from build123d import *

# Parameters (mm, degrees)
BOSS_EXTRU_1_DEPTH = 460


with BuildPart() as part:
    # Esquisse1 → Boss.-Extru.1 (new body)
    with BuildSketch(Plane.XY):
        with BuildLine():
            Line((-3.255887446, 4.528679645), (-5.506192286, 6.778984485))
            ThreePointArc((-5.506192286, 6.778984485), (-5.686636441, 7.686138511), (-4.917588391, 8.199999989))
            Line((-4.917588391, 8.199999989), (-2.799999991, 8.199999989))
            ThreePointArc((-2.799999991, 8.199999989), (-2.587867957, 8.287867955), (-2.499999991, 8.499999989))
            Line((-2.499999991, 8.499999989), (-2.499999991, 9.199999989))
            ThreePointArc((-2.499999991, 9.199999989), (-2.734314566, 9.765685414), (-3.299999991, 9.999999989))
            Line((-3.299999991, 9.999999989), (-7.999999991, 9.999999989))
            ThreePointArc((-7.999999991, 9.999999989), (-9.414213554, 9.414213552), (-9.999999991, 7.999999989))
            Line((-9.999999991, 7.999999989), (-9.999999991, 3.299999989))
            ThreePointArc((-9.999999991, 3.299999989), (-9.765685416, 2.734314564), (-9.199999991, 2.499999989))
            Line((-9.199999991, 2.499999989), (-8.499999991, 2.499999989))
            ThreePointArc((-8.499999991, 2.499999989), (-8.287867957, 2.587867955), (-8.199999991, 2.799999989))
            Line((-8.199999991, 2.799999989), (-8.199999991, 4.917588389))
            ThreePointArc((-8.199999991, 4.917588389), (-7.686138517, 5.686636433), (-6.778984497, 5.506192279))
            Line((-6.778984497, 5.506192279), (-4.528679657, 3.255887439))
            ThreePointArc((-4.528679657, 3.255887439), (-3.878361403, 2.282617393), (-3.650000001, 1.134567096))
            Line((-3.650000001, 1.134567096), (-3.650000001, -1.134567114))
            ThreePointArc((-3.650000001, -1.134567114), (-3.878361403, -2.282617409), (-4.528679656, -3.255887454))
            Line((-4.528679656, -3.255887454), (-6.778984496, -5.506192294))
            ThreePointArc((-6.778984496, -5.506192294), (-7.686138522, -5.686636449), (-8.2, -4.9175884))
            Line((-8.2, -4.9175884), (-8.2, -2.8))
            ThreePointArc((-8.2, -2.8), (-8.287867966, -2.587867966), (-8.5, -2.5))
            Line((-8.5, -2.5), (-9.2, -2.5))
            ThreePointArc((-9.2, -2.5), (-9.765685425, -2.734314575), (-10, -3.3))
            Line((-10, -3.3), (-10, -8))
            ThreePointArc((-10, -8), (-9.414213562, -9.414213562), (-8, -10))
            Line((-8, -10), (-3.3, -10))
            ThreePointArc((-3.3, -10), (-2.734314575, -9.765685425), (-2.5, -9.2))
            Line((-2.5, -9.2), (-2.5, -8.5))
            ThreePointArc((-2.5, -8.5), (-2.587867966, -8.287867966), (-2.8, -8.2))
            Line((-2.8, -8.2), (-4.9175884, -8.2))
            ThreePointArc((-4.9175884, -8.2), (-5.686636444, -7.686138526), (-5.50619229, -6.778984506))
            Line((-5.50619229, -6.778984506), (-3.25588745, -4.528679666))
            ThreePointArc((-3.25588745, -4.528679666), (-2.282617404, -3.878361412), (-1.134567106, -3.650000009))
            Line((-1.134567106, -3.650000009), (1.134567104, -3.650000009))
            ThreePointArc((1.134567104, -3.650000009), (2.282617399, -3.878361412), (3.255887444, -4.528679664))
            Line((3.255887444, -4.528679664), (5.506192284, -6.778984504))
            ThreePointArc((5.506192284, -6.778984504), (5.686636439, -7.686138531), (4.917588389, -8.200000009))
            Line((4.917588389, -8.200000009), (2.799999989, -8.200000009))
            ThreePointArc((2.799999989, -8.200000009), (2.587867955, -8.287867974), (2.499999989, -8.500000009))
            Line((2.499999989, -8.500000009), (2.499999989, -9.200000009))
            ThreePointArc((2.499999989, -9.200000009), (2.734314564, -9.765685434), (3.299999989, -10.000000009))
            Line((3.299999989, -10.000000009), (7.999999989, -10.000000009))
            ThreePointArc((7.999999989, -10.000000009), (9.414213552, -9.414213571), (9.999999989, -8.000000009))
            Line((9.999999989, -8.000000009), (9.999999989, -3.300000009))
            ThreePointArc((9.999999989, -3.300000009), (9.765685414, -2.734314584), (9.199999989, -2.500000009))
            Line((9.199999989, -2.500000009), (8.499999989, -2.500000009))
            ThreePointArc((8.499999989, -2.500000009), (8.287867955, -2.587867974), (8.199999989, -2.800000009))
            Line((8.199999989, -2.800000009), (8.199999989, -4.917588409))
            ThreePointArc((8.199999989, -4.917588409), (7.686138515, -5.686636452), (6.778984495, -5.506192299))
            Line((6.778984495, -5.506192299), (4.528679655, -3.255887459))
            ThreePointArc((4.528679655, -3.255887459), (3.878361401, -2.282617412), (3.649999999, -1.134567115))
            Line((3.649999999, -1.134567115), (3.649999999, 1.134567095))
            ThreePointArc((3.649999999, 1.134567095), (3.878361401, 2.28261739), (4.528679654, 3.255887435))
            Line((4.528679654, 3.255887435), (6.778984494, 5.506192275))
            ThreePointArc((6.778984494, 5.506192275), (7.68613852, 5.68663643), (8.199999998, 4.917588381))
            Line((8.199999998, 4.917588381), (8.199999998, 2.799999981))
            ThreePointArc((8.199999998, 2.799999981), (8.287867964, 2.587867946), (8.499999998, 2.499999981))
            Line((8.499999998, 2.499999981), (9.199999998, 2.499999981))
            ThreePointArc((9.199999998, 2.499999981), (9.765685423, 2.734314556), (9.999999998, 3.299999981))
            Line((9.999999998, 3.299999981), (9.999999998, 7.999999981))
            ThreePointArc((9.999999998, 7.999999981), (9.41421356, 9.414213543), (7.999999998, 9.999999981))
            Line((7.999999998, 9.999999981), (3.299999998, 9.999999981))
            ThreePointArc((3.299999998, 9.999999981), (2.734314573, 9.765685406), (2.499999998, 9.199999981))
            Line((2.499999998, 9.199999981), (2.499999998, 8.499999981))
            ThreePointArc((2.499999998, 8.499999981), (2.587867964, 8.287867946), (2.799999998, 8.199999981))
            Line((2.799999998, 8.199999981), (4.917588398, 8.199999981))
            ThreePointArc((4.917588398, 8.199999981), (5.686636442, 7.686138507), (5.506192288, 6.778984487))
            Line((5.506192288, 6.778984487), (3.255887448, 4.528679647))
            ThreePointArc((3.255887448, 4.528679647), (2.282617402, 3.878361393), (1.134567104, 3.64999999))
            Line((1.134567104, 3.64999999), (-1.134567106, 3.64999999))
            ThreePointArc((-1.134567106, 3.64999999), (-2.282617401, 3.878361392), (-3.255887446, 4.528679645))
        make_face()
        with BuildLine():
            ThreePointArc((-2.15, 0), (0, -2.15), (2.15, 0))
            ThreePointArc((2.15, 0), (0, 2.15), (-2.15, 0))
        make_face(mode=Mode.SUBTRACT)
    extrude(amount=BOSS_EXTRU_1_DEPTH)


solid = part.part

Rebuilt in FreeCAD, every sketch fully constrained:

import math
import FreeCAD as App
import Part
import Sketcher

doc = App.newDocument("Part")
params = doc.addObject("Spreadsheet::Sheet", "Params")
for row, (alias, value) in enumerate([
    ("sketch1_radius", "2 mm"),
    ("sketch1_radius2", "3 mm"),
    ("sketch1_diameter", "4.3 mm"),
    ("sketch1_radius3", "0.3 mm"),
    ("sketch1_radius4", "0.8 mm"),
    ("pad1_length", "460 mm"),
], start=1):
    params.set(f"A{row}", alias)
    params.set(f"B{row}", "=" + value)
    params.setAlias(f"B{row}", alias)

body = doc.addObject("PartDesign::Body", "Body")

sketch1 = doc.addObject("Sketcher::SketchObject", "Sketch")
body.addObject(sketch1)
sketch1.AttachmentSupport = (doc.XY_Plane, [""])
sketch1.MapMode = "FlatFace"
sketch1.addGeometry([
    Part.LineSegment(App.Vector(-3.26, 4.53, 0), App.Vector(-5.51, 6.78, 0)),
    Part.ArcOfCircle(Part.Circle(App.Vector(-4.92, 7.37, 0), App.Vector(0, 0, 1), 0.83), math.radians(90), math.radians(225)),
    Part.LineSegment(App.Vector(-4.92, 8.2, 0), App.Vector(-2.8, 8.2, 0)),
    Part.ArcOfCircle(Part.Circle(App.Vector(-2.8, 8.5, 0), App.Vector(0, 0, 1), 0.3), math.radians(-90), math.radians(0)),
    Part.LineSegment(App.Vector(-2.5, 8.5, 0), App.Vector(-2.5, 9.2, 0)),
    Part.ArcOfCircle(Part.Circle(App.Vector(-3.3, 9.2, 0), App.Vector(0, 0, 1), 0.8), math.radians(0), math.radians(90)),
    Part.LineSegment(App.Vector(-3.3, 10, 0), App.Vector(-8, 10, 0)),
    Part.ArcOfCircle(Part.Circle(App.Vector(-8, 8, 0), App.Vector(0, 0, 1), 2), math.radians(90), math.radians(180)),
    Part.LineSegment(App.Vector(-10, 8, 0), App.Vector(-10, 3.3, 0)),
    Part.ArcOfCircle(Part.Circle(App.Vector(-9.2, 3.3, 0), App.Vector(0, 0, 1), 0.8), math.radians(180), math.radians(270)),
    Part.LineSegment(App.Vector(-9.2, 2.5, 0), App.Vector(-8.5, 2.5, 0)),
    Part.ArcOfCircle(Part.Circle(App.Vector(-8.5, 2.8, 0), App.Vector(0, 0, 1), 0.3), math.radians(-90), math.radians(0)),
    Part.LineSegment(App.Vector(-8.2, 2.8, 0), App.Vector(-8.2, 4.92, 0)),
    Part.ArcOfCircle(Part.Circle(App.Vector(-7.37, 4.92, 0), App.Vector(0, 0, 1), 0.83), math.radians(45), math.radians(180)),
    Part.LineSegment(App.Vector(-6.78, 5.51, 0), App.Vector(-4.53, 3.26, 0)),
    Part.ArcOfCircle(Part.Circle(App.Vector(-6.65, 1.13, 0), App.Vector(0, 0, 1), 3), math.radians(0), math.radians(45)),
    Part.LineSegment(App.Vector(-3.65, 1.13, 0), App.Vector(-3.65, -1.13, 0)),
    Part.ArcOfCircle(Part.Circle(App.Vector(-6.65, -1.13, 0), App.Vector(0, 0, 1), 3), math.radians(-45), math.radians(0)),
    Part.LineSegment(App.Vector(-4.53, -3.26, 0), App.Vector(-6.78, -5.51, 0)),
    Part.ArcOfCircle(Part.Circle(App.Vector(-7.37, -4.92, 0), App.Vector(0, 0, 1), 0.83), math.radians(180), math.radians(315)),
    Part.LineSegment(App.Vector(-8.2, -4.92, 0), App.Vector(-8.2, -2.8, 0)),
    Part.ArcOfCircle(Part.Circle(App.Vector(-8.5, -2.8, 0), App.Vector(0, 0, 1), 0.3), math.radians(0), math.radians(90)),
    Part.LineSegment(App.Vector(-8.5, -2.5, 0), App.Vector(-9.2, -2.5, 0)),
    Part.ArcOfCircle(Part.Circle(App.Vector(-9.2, -3.3, 0), App.Vector(0, 0, 1), 0.8), math.radians(90), math.radians(180)),
    Part.LineSegment(App.Vector(-10, -3.3, 0), App.Vector(-10, -8, 0)),
    Part.ArcOfCircle(Part.Circle(App.Vector(-8, -8, 0), App.Vector(0, 0, 1), 2), math.radians(-180), math.radians(-90)),
    Part.LineSegment(App.Vector(-8, -10, 0), App.Vector(-3.3, -10, 0)),
    Part.ArcOfCircle(Part.Circle(App.Vector(-3.3, -9.2, 0), App.Vector(0, 0, 1), 0.8), math.radians(-90), math.radians(0)),
    Part.LineSegment(App.Vector(-2.5, -9.2, 0), App.Vector(-2.5, -8.5, 0)),
    Part.ArcOfCircle(Part.Circle(App.Vector(-2.8, -8.5, 0), App.Vector(0, 0, 1), 0.3), math.radians(0), math.radians(90)),
    Part.LineSegment(App.Vector(-2.8, -8.2, 0), App.Vector(-4.92, -8.2, 0)),
    Part.ArcOfCircle(Part.Circle(App.Vector(-4.92, -7.37, 0), App.Vector(0, 0, 1), 0.83), math.radians(135), math.radians(270)),
    Part.LineSegment(App.Vector(-5.51, -6.78, 0), App.Vector(-3.26, -4.53, 0)),
    Part.ArcOfCircle(Part.Circle(App.Vector(-1.13, -6.65, 0), App.Vector(0, 0, 1), 3), math.radians(90), math.radians(135)),
    Part.LineSegment(App.Vector(-1.13, -3.65, 0), App.Vector(1.13, -3.65, 0)),
    Part.ArcOfCircle(Part.Circle(App.Vector(1.13, -6.65, 0), App.Vector(0, 0, 1), 3), math.radians(45), math.radians(90)),
    Part.LineSegment(App.Vector(3.26, -4.53, 0), App.Vector(5.51, -6.78, 0)),
    Part.ArcOfCircle(Part.Circle(App.Vector(4.92, -7.37, 0), App.Vector(0, 0, 1), 0.83), math.radians(-90), math.radians(45)),
    Part.LineSegment(App.Vector(4.92, -8.2, 0), App.Vector(2.8, -8.2, 0)),
    Part.ArcOfCircle(Part.Circle(App.Vector(2.8, -8.5, 0), App.Vector(0, 0, 1), 0.3), math.radians(90), math.radians(180)),
    Part.LineSegment(App.Vector(2.5, -8.5, 0), App.Vector(2.5, -9.2, 0)),
    Part.ArcOfCircle(Part.Circle(App.Vector(3.3, -9.2, 0), App.Vector(0, 0, 1), 0.8), math.radians(180), math.radians(270)),
    Part.LineSegment(App.Vector(3.3, -10, 0), App.Vector(8, -10, 0)),
    Part.ArcOfCircle(Part.Circle(App.Vector(8, -8, 0), App.Vector(0, 0, 1), 2), math.radians(-90), math.radians(0)),
    Part.LineSegment(App.Vector(10, -8, 0), App.Vector(10, -3.3, 0)),
    Part.ArcOfCircle(Part.Circle(App.Vector(9.2, -3.3, 0), App.Vector(0, 0, 1), 0.8), math.radians(0), math.radians(90)),
    Part.LineSegment(App.Vector(9.2, -2.5, 0), App.Vector(8.5, -2.5, 0)),
    Part.ArcOfCircle(Part.Circle(App.Vector(8.5, -2.8, 0), App.Vector(0, 0, 1), 0.3), math.radians(90), math.radians(180)),
    Part.LineSegment(App.Vector(8.2, -2.8, 0), App.Vector(8.2, -4.92, 0)),
    Part.ArcOfCircle(Part.Circle(App.Vector(7.37, -4.92, 0), App.Vector(0, 0, 1), 0.83), math.radians(-135), math.radians(0)),
    Part.LineSegment(App.Vector(6.78, -5.51, 0), App.Vector(4.53, -3.26, 0)),
    Part.ArcOfCircle(Part.Circle(App.Vector(6.65, -1.13, 0), App.Vector(0, 0, 1), 3), math.radians(180), math.radians(225)),
    Part.LineSegment(App.Vector(3.65, -1.13, 0), App.Vector(3.65, 1.13, 0)),
    Part.ArcOfCircle(Part.Circle(App.Vector(6.65, 1.13, 0), App.Vector(0, 0, 1), 3), math.radians(135), math.radians(180)),
    Part.LineSegment(App.Vector(4.53, 3.26, 0), App.Vector(6.78, 5.51, 0)),
    Part.ArcOfCircle(Part.Circle(App.Vector(7.37, 4.92, 0), App.Vector(0, 0, 1), 0.83), math.radians(0), math.radians(135)),
    Part.LineSegment(App.Vector(8.2, 4.92, 0), App.Vector(8.2, 2.8, 0)),
    Part.ArcOfCircle(Part.Circle(App.Vector(8.5, 2.8, 0), App.Vector(0, 0, 1), 0.3), math.radians(180), math.radians(270)),
    Part.LineSegment(App.Vector(8.5, 2.5, 0), App.Vector(9.2, 2.5, 0)),
    Part.ArcOfCircle(Part.Circle(App.Vector(9.2, 3.3, 0), App.Vector(0, 0, 1), 0.8), math.radians(-90), math.radians(0)),
    Part.LineSegment(App.Vector(10, 3.3, 0), App.Vector(10, 8, 0)),
    Part.ArcOfCircle(Part.Circle(App.Vector(8, 8, 0), App.Vector(0, 0, 1), 2), math.radians(0), math.radians(90)),
    Part.LineSegment(App.Vector(8, 10, 0), App.Vector(3.3, 10, 0)),
    Part.ArcOfCircle(Part.Circle(App.Vector(3.3, 9.2, 0), App.Vector(0, 0, 1), 0.8), math.radians(90), math.radians(180)),
    Part.LineSegment(App.Vector(2.5, 9.2, 0), App.Vector(2.5, 8.5, 0)),
    Part.ArcOfCircle(Part.Circle(App.Vector(2.8, 8.5, 0), App.Vector(0, 0, 1), 0.3), math.radians(180), math.radians(270)),
    Part.LineSegment(App.Vector(2.8, 8.2, 0), App.Vector(4.92, 8.2, 0)),
    Part.ArcOfCircle(Part.Circle(App.Vector(4.92, 7.37, 0), App.Vector(0, 0, 1), 0.83), math.radians(-45), math.radians(90)),
    Part.LineSegment(App.Vector(5.51, 6.78, 0), App.Vector(3.26, 4.53, 0)),
    Part.ArcOfCircle(Part.Circle(App.Vector(1.13, 6.65, 0), App.Vector(0, 0, 1), 3), math.radians(-90), math.radians(-45)),
    Part.LineSegment(App.Vector(1.13, 3.65, 0), App.Vector(-1.13, 3.65, 0)),
    Part.ArcOfCircle(Part.Circle(App.Vector(-1.13, 6.65, 0), App.Vector(0, 0, 1), 3), math.radians(-135), math.radians(-90)),
    Part.Circle(App.Vector(0, 0, 0), App.Vector(0, 0, 1), 2.15),
], False)
sketch1.addConstraint([
    Sketcher.Constraint("Tangent", 0, 2, 1, 2),
    Sketcher.Constraint("Tangent", 1, 1, 2, 1),
    Sketcher.Constraint("Tangent", 2, 2, 3, 1),
    Sketcher.Constraint("Tangent", 3, 2, 4, 1),
    Sketcher.Constraint("Tangent", 4, 2, 5, 1),
    Sketcher.Constraint("Tangent", 5, 2, 6, 1),
    Sketcher.Constraint("Tangent", 6, 2, 7, 1),
    Sketcher.Constraint("Tangent", 7, 2, 8, 1),
    Sketcher.Constraint("Tangent", 8, 2, 9, 1),
    Sketcher.Constraint("Tangent", 9, 2, 10, 1),
    Sketcher.Constraint("Tangent", 10, 2, 11, 1),
    Sketcher.Constraint("Tangent", 11, 2, 12, 1),
    Sketcher.Constraint("Tangent", 12, 2, 13, 2),
    Sketcher.Constraint("Tangent", 13, 1, 14, 1),
    Sketcher.Constraint("Tangent", 14, 2, 15, 2),
    Sketcher.Constraint("Tangent", 15, 1, 16, 1),
    Sketcher.Constraint("Tangent", 16, 2, 17, 2),
    Sketcher.Constraint("Tangent", 17, 1, 18, 1),
    Sketcher.Constraint("Tangent", 18, 2, 19, 2),
    Sketcher.Constraint("Tangent", 19, 1, 20, 1),
    Sketcher.Constraint("Tangent", 20, 2, 21, 1),
    Sketcher.Constraint("Tangent", 21, 2, 22, 1),
    Sketcher.Constraint("Tangent", 22, 2, 23, 1),
    Sketcher.Constraint("Tangent", 23, 2, 24, 1),
    Sketcher.Constraint("Tangent", 24, 2, 25, 1),
    Sketcher.Constraint("Tangent", 25, 2, 26, 1),
    Sketcher.Constraint("Tangent", 26, 2, 27, 1),
    Sketcher.Constraint("Tangent", 27, 2, 28, 1),
    Sketcher.Constraint("Tangent", 28, 2, 29, 1),
    Sketcher.Constraint("Tangent", 29, 2, 30, 1),
    Sketcher.Constraint("Tangent", 30, 2, 31, 2),
    Sketcher.Constraint("Tangent", 31, 1, 32, 1),
    Sketcher.Constraint("Tangent", 32, 2, 33, 2),
    Sketcher.Constraint("Tangent", 33, 1, 34, 1),
    Sketcher.Constraint("Tangent", 34, 2, 35, 2),
    Sketcher.Constraint("Tangent", 35, 1, 36, 1),
    Sketcher.Constraint("Tangent", 36, 2, 37, 2),
    Sketcher.Constraint("Tangent", 37, 1, 38, 1),
    Sketcher.Constraint("Tangent", 38, 2, 39, 1),
    Sketcher.Constraint("Tangent", 39, 2, 40, 1),
    Sketcher.Constraint("Tangent", 40, 2, 41, 1),
    Sketcher.Constraint("Tangent", 41, 2, 42, 1),
    Sketcher.Constraint("Tangent", 42, 2, 43, 1),
    Sketcher.Constraint("Tangent", 43, 2, 44, 1),
    Sketcher.Constraint("Tangent", 44, 2, 45, 1),
    Sketcher.Constraint("Tangent", 45, 2, 46, 1),
    Sketcher.Constraint("Tangent", 46, 2, 47, 1),
    Sketcher.Constraint("Tangent", 47, 2, 48, 1),
    Sketcher.Constraint("Tangent", 48, 2, 49, 2),
    Sketcher.Constraint("Tangent", 49, 1, 50, 1),
    Sketcher.Constraint("Tangent", 50, 2, 51, 2),
    Sketcher.Constraint("Tangent", 51, 1, 52, 1),
    Sketcher.Constraint("Tangent", 52, 2, 53, 2),
    Sketcher.Constraint("Tangent", 53, 1, 54, 1),
    Sketcher.Constraint("Tangent", 54, 2, 55, 2),
    Sketcher.Constraint("Tangent", 55, 1, 56, 1),
    Sketcher.Constraint("Tangent", 56, 2, 57, 1),
    Sketcher.Constraint("Tangent", 57, 2, 58, 1),
    Sketcher.Constraint("Tangent", 58, 2, 59, 1),
    Sketcher.Constraint("Tangent", 59, 2, 60, 1),
    Sketcher.Constraint("Tangent", 60, 2, 61, 1),
    Sketcher.Constraint("Tangent", 61, 2, 62, 1),
    Sketcher.Constraint("Tangent", 62, 2, 63, 1),
    Sketcher.Constraint("Tangent", 63, 2, 64, 1),
    Sketcher.Constraint("Tangent", 64, 2, 65, 1),
    Sketcher.Constraint("Tangent", 65, 2, 66, 1),
    Sketcher.Constraint("Tangent", 66, 2, 67, 2),
    Sketcher.Constraint("Tangent", 67, 1, 68, 1),
    Sketcher.Constraint("Tangent", 68, 2, 69, 2),
    Sketcher.Constraint("Tangent", 69, 1, 70, 1),
    Sketcher.Constraint("Tangent", 70, 2, 71, 2),
    Sketcher.Constraint("Tangent", 71, 1, 0, 1),
    Sketcher.Constraint("Horizontal", 2),
    Sketcher.Constraint("Vertical", 4),
    Sketcher.Constraint("Horizontal", 6),
    Sketcher.Constraint("Vertical", 8),
    Sketcher.Constraint("Horizontal", 10),
    Sketcher.Constraint("Vertical", 12),
    Sketcher.Constraint("Vertical", 16),
    Sketcher.Constraint("Vertical", 20),
    Sketcher.Constraint("Horizontal", 22),
    Sketcher.Constraint("Vertical", 24),
    Sketcher.Constraint("Horizontal", 26),
    Sketcher.Constraint("Vertical", 28),
    Sketcher.Constraint("Horizontal", 30),
    Sketcher.Constraint("Horizontal", 34),
    Sketcher.Constraint("Horizontal", 38),
    Sketcher.Constraint("Vertical", 40),
    Sketcher.Constraint("Horizontal", 42),
    Sketcher.Constraint("Vertical", 44),
    Sketcher.Constraint("Horizontal", 46),
    Sketcher.Constraint("Vertical", 48),
    Sketcher.Constraint("Vertical", 52),
    Sketcher.Constraint("Vertical", 56),
    Sketcher.Constraint("Horizontal", 58),
    Sketcher.Constraint("Vertical", 60),
    Sketcher.Constraint("Horizontal", 62),
    Sketcher.Constraint("Vertical", 64),
    Sketcher.Constraint("Horizontal", 66),
    Sketcher.Constraint("Horizontal", 70),
    Sketcher.Constraint("Coincident", 72, 3, -1, 1),
    Sketcher.Constraint("Equal", 5, 9),
    Sketcher.Constraint("Equal", 3, 11),
    Sketcher.Constraint("Equal", 1, 13),
    Sketcher.Constraint("Equal", 15, 17),
    Sketcher.Constraint("Equal", 13, 19),
    Sketcher.Constraint("Equal", 11, 21),
    Sketcher.Constraint("Equal", 9, 23),
    Sketcher.Constraint("Equal", 7, 25),
    Sketcher.Constraint("Equal", 23, 27),
    Sketcher.Constraint("Equal", 21, 29),
    Sketcher.Constraint("Equal", 19, 31),
    Sketcher.Constraint("Equal", 17, 33),
    Sketcher.Constraint("Equal", 33, 35),
    Sketcher.Constraint("Equal", 31, 37),
    Sketcher.Constraint("Equal", 29, 39),
    Sketcher.Constraint("Equal", 27, 41),
    Sketcher.Constraint("Equal", 25, 43),
    Sketcher.Constraint("Equal", 41, 45),
    Sketcher.Constraint("Equal", 39, 47),
    Sketcher.Constraint("Equal", 37, 49),
    Sketcher.Constraint("Equal", 35, 51),
    Sketcher.Constraint("Equal", 51, 53),
    Sketcher.Constraint("Equal", 49, 55),
    Sketcher.Constraint("Equal", 47, 57),
    Sketcher.Constraint("Equal", 45, 59),
    Sketcher.Constraint("Equal", 43, 61),
    Sketcher.Constraint("Equal", 59, 63),
    Sketcher.Constraint("Equal", 57, 65),
    Sketcher.Constraint("Equal", 55, 67),
    Sketcher.Constraint("Equal", 53, 69),
    Sketcher.Constraint("Equal", 69, 71),
    Sketcher.Constraint("Symmetric", 1, 3, 37, 3, -1, 1),
    Sketcher.Constraint("Symmetric", 5, 3, 41, 3, -1, 1),
    Sketcher.Constraint("Symmetric", 9, 3, 45, 3, -1, 1),
    Sketcher.Constraint("Symmetric", 13, 3, 49, 3, -1, 1),
    Sketcher.Constraint("Symmetric", 15, 3, 51, 3, -1, 1),
    Sketcher.Constraint("Symmetric", 19, 3, 55, 3, -1, 1),
    Sketcher.Constraint("Symmetric", 23, 3, 59, 3, -1, 1),
    Sketcher.Constraint("Symmetric", 27, 3, 63, 3, -1, 1),
    Sketcher.Constraint("Symmetric", 31, 3, 67, 3, -1, 1),
    Sketcher.Constraint("Symmetric", 33, 3, 69, 3, -1, 1),
    Sketcher.Constraint("Symmetric", 31, 3, 37, 3, -2),
    Sketcher.Constraint("Symmetric", 27, 3, 41, 3, -2),
    Sketcher.Constraint("Symmetric", 23, 3, 45, 3, -2),
    Sketcher.Constraint("Symmetric", 19, 3, 49, 3, -2),
    Sketcher.Constraint("Parallel", 0, 14),
    Sketcher.Constraint("Perpendicular", 14, 18),
    Sketcher.Constraint("Parallel", 18, 32),
    Sketcher.Constraint("Perpendicular", 32, 36),
    Sketcher.Constraint("Perpendicular", 50, 54),
    Sketcher.Constraint("Horizontal", 17, 3, 51, 3),
    Sketcher.Constraint("Equal", 58, 4),
    Sketcher.Constraint("Equal", 62, 8),
    Sketcher.Constraint("Equal", 66, 12),
    Sketcher.Constraint("Equal", 70, 16),
    Sketcher.Constraint("Equal", 0, 14),
    Sketcher.Constraint("Radius", 7, 2.0),
    Sketcher.Constraint("Radius", 15, 3.0),
    Sketcher.Constraint("Diameter", 72, 4.3),
    Sketcher.Constraint("Radius", 3, 0.3),
    Sketcher.Constraint("Radius", 5, 0.8),
    Sketcher.Constraint("DistanceX", 6, 2, 6, 1, 4.7),
    Sketcher.Constraint("DistanceX", 10, 1, 10, 2, 0.7),
    Sketcher.Constraint("DistanceX", 7, 3, -1, 1, 8.0),
    Sketcher.Constraint("DistanceX", 15, 3, -1, 1, 6.65),
    Sketcher.Constraint("Radius", 1, 0.832412),
    Sketcher.Constraint("DistanceX", 2, 1, 2, 2, 2.117588),
])
sketch1.setExpression("Constraints[157]", "Params.sketch1_radius")
sketch1.setExpression("Constraints[158]", "Params.sketch1_radius2")
sketch1.setExpression("Constraints[159]", "Params.sketch1_diameter")
sketch1.setExpression("Constraints[160]", "Params.sketch1_radius3")
sketch1.setExpression("Constraints[161]", "Params.sketch1_radius4")
pad1 = doc.addObject("PartDesign::Pad", "Pad")
body.addObject(pad1)
pad1.Profile = sketch1
pad1.setExpression("Length", "Params.pad1_length")

doc.recompute()
